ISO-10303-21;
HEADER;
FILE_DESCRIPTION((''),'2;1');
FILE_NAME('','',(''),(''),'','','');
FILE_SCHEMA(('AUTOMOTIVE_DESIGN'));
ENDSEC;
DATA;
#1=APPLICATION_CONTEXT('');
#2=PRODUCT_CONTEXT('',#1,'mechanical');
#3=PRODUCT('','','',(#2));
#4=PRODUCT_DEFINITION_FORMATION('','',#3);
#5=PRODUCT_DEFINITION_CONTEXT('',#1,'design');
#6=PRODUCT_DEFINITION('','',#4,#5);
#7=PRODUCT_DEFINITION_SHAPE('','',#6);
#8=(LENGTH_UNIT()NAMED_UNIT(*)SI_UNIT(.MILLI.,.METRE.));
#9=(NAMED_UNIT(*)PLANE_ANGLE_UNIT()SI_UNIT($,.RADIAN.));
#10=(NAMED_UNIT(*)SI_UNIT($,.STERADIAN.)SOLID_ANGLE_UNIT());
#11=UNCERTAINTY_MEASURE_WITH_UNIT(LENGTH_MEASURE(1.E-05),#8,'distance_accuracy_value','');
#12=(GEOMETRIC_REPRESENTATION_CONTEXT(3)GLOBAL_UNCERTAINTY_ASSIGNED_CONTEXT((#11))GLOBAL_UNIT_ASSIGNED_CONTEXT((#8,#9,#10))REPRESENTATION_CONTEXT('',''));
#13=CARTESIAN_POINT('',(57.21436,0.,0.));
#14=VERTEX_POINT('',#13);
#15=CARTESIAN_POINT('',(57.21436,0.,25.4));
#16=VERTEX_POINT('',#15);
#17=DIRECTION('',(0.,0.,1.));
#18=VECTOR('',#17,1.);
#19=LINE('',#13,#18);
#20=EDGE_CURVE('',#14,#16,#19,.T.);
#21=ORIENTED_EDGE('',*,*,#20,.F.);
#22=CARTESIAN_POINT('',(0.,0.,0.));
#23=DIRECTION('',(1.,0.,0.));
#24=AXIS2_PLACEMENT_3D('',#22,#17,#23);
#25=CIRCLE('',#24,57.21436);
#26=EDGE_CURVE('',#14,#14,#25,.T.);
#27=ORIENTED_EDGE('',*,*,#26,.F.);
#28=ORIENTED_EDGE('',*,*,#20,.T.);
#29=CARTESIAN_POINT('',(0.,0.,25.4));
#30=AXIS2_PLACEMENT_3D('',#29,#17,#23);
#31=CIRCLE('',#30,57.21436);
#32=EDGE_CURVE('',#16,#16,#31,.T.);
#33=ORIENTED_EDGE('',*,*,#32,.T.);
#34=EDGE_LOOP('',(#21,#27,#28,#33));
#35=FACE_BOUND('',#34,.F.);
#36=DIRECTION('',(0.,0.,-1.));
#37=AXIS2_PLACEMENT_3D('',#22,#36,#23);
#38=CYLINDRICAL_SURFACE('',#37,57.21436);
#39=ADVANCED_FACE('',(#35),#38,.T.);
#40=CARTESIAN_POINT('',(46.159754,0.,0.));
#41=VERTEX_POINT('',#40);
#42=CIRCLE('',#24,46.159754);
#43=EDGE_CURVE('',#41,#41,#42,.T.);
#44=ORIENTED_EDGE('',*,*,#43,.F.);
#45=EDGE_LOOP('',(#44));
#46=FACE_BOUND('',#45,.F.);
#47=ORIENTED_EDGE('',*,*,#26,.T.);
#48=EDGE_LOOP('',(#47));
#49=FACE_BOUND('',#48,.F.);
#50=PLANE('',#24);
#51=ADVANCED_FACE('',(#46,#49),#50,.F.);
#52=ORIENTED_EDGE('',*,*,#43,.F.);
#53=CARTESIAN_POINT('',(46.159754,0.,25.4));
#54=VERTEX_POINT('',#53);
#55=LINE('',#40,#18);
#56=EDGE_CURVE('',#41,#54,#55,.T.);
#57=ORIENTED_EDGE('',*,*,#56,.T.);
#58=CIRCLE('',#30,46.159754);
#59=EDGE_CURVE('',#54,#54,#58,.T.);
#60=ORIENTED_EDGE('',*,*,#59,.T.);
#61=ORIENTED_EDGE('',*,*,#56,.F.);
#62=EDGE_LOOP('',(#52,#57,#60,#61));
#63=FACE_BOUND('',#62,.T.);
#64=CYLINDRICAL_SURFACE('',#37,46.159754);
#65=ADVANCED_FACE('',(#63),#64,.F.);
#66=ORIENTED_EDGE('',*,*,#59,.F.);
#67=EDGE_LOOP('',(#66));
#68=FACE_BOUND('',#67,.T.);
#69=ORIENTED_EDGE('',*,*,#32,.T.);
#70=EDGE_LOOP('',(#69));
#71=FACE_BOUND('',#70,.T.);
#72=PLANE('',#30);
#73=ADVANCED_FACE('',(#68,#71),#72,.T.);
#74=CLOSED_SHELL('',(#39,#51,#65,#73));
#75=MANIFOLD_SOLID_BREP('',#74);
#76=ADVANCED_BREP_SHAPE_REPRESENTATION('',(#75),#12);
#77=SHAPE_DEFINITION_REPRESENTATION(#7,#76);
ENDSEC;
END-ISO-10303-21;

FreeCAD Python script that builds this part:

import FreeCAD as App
import Part
import Sketcher
Q = App.Units.Quantity

doc = App.newDocument("Part")
body = doc.addObject("PartDesign::Body", "Body")

# Sketch on XY plane
sketch1 = body.newObject("Sketcher::SketchObject", "Sketch")
sketch1.AttachmentSupport = (doc.getObject("XY_Plane"), [""])
sketch1.MapMode = "FlatFace"
sketch1.addGeometry(Part.Circle(App.Vector(0, 0, 0), App.Vector(0, 0, 1), 57), False)
sketch1.addConstraint([
    Sketcher.Constraint("Coincident", 0, 3, -1, 1),
    Sketcher.Constraint("Diameter", 0, Q("114.42872 mm")),
])
pad1 = body.newObject("PartDesign::Pad", "Pad")
pad1.Profile = sketch1
pad1.Length = Q("1 in")

# Sketch on XY plane
sketch2 = body.newObject("Sketcher::SketchObject", "Sketch001")
sketch2.AttachmentSupport = (doc.getObject("XY_Plane"), [""])
sketch2.MapMode = "FlatFace"
sketch2.addGeometry(Part.Circle(App.Vector(0, 0, 0), App.Vector(0, 0, 1), 46), False)
sketch2.addConstraint([
    Sketcher.Constraint("Coincident", 0, 3, -1, 1),
    Sketcher.Constraint("Diameter", 0, Q("92.319508 mm")),
])
pocket1 = body.newObject("PartDesign::Pocket", "Pocket")
pocket1.Profile = sketch2
pocket1.Length = Q("1 in")
pocket1.Reversed = True

# Sketch on XY plane
sketch3 = body.newObject("Sketcher::SketchObject", "Sketch002")
sketch3.AttachmentSupport = (doc.getObject("XY_Plane"), [""])
sketch3.MapMode = "FlatFace"
sketch3.addGeometry([
    Part.LineSegment(App.Vector(-7, 194, 0), App.Vector(-7, 172, 0)),
    Part.LineSegment(App.Vector(-7, 172, 0), App.Vector(7, 172, 0)),
    Part.LineSegment(App.Vector(7, 172, 0), App.Vector(7, 194, 0)),
    Part.LineSegment(App.Vector(7, 194, 0), App.Vector(-7, 194, 0)),
], False)
sketch3.addConstraint([
    Sketcher.Constraint("Coincident", 0, 2, 1, 1),
    Sketcher.Constraint("Coincident", 1, 2, 2, 1),
    Sketcher.Constraint("Coincident", 2, 2, 3, 1),
    Sketcher.Constraint("Coincident", 3, 2, 0, 1),
    Sketcher.Constraint("Vertical", 0),
    Sketcher.Constraint("Horizontal", 1),
    Sketcher.Constraint("Vertical", 2),
    Sketcher.Constraint("Horizontal", 3),
    Sketcher.Constraint("DistanceY", 0, 2, 0, 1, Q("22.873998 mm")),
    Sketcher.Constraint("DistanceX", 1, 1, 1, 2, Q("13.088044 mm")),
    Sketcher.Constraint("DistanceY", -1, 1, 0, 2, Q("171.549439 mm")),
    Sketcher.Constraint("DistanceX", 0, 2, -1, 1, Q("6.544022 mm")),
])
pocket2 = body.newObject("PartDesign::Pocket", "Pocket001")
pocket2.Profile = sketch3
pocket2.Length = Q("1 in")
pocket2.Reversed = True

doc.recompute()
